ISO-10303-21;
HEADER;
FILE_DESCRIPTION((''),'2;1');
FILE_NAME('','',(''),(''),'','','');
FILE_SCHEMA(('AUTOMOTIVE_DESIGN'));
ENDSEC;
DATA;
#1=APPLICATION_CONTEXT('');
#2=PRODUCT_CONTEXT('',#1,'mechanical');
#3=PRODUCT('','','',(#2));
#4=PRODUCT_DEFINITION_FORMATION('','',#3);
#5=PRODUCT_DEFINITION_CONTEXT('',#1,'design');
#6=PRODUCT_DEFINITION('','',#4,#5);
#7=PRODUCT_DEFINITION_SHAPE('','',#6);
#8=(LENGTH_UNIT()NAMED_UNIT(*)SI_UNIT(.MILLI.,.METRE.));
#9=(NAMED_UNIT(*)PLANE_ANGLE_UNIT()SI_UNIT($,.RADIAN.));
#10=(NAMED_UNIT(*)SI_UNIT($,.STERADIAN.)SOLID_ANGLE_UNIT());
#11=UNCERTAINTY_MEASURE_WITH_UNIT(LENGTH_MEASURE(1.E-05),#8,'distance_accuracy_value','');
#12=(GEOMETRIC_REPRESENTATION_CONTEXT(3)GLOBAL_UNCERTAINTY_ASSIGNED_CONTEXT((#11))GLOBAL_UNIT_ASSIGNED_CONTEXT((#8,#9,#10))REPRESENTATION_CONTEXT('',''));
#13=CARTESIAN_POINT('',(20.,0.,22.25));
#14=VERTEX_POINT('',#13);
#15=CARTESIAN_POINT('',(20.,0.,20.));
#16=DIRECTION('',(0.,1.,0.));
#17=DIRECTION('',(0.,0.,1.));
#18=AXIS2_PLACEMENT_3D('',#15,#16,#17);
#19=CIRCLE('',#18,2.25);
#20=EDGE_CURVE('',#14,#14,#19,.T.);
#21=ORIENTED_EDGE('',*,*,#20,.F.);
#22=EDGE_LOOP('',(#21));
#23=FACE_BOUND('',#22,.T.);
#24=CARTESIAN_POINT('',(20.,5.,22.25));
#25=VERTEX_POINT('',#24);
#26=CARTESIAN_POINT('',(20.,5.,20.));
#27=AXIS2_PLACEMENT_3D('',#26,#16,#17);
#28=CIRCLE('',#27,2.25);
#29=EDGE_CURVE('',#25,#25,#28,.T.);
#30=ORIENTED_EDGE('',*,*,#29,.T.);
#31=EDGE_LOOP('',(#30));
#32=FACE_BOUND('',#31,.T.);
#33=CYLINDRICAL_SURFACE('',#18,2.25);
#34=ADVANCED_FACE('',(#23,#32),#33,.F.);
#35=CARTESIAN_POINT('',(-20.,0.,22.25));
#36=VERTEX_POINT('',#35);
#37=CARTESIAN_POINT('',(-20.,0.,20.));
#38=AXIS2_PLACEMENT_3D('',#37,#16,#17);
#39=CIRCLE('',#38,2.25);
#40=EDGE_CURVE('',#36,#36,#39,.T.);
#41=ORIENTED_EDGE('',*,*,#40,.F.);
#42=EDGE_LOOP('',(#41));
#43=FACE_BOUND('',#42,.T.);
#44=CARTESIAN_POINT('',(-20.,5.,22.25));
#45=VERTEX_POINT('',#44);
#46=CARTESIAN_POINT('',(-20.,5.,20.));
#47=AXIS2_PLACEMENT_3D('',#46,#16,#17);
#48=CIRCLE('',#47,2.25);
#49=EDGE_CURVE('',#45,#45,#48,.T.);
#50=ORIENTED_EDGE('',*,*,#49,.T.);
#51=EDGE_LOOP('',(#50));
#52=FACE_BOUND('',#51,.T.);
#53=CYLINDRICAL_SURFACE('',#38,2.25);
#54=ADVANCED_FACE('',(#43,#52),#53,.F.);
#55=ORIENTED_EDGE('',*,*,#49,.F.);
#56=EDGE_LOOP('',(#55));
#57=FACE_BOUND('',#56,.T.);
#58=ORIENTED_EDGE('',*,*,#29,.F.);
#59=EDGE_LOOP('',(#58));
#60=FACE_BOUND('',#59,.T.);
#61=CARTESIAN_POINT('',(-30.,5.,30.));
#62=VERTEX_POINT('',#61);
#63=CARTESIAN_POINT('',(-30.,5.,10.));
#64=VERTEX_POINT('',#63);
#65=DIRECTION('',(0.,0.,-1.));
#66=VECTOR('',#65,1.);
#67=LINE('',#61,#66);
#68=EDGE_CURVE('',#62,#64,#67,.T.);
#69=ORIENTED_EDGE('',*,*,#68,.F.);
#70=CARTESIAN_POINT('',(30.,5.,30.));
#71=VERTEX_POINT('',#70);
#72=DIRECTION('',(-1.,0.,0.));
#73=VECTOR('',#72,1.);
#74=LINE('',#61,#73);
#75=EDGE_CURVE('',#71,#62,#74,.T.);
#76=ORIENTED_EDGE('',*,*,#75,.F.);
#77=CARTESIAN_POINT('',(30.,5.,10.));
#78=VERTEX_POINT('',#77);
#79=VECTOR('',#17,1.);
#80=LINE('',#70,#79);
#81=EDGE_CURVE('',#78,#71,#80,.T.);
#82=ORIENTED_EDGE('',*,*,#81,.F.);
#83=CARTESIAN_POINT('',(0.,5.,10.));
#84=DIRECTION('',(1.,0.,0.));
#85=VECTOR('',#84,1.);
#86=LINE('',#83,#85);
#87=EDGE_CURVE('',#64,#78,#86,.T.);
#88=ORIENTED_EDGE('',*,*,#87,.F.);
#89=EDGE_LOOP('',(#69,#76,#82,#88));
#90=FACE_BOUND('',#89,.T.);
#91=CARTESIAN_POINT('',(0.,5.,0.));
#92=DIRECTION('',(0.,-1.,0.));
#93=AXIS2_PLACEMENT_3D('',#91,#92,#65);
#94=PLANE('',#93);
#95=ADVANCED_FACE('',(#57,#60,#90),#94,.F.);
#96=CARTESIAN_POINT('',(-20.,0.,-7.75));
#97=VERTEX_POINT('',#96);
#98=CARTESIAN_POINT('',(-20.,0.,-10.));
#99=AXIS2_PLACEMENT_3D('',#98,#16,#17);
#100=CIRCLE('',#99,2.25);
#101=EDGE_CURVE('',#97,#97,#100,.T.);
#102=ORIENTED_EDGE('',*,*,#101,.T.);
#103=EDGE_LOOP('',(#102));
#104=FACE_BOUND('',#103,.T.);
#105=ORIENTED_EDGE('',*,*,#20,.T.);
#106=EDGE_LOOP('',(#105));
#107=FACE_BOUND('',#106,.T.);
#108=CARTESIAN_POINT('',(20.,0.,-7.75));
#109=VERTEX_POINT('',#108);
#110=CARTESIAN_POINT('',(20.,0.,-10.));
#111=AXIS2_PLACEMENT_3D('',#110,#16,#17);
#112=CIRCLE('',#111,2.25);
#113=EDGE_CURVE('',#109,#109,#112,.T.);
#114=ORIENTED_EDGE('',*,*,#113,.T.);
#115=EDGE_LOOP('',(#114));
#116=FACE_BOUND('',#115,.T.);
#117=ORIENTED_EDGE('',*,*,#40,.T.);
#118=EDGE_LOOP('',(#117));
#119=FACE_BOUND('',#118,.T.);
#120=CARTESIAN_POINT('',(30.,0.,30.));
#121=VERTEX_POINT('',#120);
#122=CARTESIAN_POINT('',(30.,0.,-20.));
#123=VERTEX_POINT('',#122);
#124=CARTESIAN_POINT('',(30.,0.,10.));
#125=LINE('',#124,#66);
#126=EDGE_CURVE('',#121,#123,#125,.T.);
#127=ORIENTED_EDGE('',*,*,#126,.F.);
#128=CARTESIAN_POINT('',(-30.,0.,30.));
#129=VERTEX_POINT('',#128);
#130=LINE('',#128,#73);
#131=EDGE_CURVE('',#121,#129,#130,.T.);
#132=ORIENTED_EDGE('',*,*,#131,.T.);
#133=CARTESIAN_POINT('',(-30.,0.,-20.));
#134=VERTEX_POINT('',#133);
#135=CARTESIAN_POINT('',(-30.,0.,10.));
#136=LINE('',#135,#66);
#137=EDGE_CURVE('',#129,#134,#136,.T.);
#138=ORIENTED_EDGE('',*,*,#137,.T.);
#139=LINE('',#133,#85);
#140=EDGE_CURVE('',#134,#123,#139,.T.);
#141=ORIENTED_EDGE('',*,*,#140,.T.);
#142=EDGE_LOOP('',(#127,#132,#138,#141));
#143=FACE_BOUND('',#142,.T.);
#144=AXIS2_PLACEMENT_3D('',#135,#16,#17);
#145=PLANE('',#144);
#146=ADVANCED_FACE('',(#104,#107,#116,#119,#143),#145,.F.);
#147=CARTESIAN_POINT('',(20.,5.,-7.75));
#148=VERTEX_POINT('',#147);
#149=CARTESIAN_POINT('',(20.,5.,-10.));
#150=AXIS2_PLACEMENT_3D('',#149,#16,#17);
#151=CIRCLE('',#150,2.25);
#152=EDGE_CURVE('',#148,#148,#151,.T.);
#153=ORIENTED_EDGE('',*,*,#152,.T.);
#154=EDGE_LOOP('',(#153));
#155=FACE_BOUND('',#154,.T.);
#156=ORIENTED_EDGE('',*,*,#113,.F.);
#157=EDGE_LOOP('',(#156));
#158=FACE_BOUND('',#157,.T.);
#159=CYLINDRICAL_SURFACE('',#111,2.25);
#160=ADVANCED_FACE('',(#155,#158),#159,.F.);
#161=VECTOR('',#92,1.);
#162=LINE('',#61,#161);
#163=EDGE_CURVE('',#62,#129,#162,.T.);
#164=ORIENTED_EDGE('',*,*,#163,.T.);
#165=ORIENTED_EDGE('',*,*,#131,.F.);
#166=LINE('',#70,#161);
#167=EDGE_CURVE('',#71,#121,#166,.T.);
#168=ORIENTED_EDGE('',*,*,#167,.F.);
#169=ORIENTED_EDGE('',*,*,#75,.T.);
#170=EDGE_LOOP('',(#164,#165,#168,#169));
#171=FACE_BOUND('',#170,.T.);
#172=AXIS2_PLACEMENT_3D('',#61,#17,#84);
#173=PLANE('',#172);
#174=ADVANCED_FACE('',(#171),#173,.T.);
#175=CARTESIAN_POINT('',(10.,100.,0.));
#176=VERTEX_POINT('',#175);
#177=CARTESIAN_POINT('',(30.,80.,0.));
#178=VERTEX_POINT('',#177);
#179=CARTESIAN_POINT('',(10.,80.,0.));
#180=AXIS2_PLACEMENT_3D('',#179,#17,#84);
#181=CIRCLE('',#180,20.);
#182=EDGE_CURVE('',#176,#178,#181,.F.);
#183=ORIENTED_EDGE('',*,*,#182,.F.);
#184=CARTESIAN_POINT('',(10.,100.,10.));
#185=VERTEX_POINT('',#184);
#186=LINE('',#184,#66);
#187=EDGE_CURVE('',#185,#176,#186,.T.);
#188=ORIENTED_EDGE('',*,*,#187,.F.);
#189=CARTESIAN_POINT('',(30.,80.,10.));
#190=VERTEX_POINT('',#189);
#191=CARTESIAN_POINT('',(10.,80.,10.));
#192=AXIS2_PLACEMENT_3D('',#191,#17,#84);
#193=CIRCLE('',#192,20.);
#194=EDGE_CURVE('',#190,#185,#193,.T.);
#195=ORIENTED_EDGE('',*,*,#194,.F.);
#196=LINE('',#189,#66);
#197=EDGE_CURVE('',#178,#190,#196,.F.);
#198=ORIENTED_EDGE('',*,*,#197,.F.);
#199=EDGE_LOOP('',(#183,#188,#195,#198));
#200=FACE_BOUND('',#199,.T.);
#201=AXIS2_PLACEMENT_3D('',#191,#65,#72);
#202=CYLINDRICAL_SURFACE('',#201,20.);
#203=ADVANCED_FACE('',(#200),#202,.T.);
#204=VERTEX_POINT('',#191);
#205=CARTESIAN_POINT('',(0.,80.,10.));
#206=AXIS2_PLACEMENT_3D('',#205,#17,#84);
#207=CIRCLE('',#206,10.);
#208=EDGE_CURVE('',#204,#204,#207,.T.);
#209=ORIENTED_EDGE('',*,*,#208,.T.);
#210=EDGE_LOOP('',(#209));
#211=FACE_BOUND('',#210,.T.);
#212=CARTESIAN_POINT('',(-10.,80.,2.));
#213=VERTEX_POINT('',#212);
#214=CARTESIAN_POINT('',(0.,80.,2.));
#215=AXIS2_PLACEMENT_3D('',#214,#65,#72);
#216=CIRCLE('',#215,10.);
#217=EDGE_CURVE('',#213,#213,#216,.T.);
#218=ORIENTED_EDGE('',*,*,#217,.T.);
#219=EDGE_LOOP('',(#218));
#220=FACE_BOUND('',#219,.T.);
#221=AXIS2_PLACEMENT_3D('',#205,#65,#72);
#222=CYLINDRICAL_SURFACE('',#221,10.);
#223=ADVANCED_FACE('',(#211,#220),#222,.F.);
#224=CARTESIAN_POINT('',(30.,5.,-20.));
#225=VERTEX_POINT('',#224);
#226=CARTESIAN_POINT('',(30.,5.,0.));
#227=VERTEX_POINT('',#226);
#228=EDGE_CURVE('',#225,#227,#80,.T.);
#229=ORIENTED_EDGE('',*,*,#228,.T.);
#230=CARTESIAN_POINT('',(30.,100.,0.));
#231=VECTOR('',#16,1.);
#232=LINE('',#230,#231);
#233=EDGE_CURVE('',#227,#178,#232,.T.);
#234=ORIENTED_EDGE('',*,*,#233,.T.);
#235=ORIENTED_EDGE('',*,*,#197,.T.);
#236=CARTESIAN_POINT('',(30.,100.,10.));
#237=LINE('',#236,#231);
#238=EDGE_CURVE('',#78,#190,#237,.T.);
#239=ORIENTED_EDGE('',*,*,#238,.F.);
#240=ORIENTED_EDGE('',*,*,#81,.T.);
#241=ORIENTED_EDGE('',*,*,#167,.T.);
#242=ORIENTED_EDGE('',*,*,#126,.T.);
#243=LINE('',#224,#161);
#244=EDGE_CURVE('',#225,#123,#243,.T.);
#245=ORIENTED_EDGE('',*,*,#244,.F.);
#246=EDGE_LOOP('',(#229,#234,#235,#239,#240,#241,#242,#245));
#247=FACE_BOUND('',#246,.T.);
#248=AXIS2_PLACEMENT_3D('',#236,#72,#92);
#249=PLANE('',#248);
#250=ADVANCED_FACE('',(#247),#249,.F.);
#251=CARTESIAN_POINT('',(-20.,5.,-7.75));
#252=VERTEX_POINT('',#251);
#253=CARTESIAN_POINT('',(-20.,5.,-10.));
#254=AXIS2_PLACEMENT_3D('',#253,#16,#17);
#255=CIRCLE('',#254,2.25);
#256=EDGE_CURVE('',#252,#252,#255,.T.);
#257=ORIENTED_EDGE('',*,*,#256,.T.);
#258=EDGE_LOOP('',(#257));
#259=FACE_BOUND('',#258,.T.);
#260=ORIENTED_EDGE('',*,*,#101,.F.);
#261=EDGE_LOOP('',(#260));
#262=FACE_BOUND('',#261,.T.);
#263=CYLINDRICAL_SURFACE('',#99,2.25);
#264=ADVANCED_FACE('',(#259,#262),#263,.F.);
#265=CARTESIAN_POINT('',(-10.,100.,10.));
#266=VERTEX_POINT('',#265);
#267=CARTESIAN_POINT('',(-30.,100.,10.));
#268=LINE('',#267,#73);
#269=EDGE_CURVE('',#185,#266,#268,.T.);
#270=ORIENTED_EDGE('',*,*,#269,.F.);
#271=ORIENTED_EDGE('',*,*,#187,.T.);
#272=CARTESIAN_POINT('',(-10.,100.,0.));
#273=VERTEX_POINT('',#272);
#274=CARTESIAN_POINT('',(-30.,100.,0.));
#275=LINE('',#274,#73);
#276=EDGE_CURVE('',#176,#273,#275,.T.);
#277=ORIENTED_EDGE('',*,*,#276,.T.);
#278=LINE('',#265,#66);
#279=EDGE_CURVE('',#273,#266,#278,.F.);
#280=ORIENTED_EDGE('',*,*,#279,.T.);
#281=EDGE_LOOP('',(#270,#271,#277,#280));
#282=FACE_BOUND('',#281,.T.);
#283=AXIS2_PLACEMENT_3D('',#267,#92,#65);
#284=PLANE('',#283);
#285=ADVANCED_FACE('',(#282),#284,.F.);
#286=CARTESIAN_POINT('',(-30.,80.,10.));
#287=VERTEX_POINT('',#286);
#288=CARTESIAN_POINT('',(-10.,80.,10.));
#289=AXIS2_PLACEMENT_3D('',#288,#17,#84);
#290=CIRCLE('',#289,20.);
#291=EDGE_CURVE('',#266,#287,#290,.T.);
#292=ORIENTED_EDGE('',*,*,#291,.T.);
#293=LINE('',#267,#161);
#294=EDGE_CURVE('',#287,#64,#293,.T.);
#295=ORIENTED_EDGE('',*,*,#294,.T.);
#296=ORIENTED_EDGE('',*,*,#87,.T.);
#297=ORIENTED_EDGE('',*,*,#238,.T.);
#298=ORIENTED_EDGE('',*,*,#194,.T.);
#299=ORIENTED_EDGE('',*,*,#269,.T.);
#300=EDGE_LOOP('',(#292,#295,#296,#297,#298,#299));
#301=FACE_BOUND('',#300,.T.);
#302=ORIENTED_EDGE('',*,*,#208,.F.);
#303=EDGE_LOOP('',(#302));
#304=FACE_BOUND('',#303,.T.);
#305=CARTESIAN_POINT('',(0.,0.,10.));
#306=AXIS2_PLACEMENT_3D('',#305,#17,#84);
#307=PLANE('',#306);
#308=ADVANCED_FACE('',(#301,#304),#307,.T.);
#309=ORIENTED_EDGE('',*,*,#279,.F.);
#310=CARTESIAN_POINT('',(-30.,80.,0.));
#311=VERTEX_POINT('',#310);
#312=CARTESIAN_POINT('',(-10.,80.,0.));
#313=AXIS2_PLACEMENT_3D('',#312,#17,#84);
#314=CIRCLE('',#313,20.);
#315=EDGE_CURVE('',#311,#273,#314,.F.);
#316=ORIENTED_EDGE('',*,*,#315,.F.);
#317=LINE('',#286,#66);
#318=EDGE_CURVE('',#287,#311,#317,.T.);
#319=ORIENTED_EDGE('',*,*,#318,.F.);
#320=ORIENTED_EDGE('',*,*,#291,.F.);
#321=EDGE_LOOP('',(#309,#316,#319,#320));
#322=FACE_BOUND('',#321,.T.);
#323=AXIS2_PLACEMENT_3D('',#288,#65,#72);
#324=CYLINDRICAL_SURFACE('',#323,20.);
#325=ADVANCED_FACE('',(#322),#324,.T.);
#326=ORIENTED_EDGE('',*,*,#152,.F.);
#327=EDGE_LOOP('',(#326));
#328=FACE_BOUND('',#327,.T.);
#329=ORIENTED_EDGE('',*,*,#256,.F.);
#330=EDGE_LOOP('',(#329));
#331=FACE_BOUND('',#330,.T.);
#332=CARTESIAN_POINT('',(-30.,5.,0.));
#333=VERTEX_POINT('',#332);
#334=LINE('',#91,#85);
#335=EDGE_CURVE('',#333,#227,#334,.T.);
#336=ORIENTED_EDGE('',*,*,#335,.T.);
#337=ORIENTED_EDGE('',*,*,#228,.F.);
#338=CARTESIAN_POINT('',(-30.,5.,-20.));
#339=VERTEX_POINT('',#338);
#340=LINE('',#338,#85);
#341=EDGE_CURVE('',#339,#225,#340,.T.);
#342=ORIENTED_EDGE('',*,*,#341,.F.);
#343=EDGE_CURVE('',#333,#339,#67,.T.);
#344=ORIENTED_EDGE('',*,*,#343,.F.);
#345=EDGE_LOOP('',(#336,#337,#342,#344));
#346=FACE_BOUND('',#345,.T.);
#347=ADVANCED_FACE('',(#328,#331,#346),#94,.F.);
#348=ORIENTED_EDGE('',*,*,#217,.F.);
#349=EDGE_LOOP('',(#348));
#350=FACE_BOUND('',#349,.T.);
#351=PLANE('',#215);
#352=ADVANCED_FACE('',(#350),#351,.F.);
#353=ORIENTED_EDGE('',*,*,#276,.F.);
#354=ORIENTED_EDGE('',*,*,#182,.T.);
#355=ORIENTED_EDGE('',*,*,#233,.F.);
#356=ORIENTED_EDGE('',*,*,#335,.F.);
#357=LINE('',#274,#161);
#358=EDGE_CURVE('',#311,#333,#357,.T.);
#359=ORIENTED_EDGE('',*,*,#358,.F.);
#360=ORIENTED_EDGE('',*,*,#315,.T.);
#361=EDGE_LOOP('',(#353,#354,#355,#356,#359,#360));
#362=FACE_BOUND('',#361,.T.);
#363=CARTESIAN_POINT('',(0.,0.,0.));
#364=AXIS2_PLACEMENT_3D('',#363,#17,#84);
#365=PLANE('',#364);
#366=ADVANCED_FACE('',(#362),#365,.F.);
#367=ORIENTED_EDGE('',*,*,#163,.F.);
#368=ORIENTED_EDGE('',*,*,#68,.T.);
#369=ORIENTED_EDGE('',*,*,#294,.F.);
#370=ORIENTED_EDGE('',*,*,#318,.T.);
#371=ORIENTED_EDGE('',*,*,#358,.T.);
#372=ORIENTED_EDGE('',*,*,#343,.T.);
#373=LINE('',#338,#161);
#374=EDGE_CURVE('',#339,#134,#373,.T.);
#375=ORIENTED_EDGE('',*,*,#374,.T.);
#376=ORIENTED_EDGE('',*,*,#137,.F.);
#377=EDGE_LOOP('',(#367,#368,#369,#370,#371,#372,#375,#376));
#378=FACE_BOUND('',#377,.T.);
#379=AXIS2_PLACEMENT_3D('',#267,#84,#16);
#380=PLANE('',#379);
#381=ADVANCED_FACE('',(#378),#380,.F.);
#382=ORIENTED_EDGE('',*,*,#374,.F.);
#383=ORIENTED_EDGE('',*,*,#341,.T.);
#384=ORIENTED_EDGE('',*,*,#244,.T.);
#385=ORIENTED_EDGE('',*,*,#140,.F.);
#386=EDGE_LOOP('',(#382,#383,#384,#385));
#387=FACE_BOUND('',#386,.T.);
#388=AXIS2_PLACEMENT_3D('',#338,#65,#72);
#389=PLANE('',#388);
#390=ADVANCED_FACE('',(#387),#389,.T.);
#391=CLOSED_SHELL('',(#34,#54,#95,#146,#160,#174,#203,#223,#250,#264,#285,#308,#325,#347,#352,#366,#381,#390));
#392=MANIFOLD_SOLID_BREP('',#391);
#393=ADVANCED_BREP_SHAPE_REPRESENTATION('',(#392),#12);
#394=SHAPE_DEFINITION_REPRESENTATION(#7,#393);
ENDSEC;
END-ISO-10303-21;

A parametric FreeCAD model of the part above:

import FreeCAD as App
import Part
import Sketcher

V = App.Vector


def edges_at(feature, points):
    """Names of the edges that pass closest to the given points."""
    edges = feature.Shape.Edges
    near = lambda p: min(range(len(edges)), key=lambda i: edges[i].distToShape(Part.Vertex(*p))[0])
    return sorted({f"Edge{near(p) + 1}" for p in points})


def add_polygon(sketch, points):
    """Adds a closed chain of lines whose ends are joined by coincident constraints."""
    first, n = sketch.GeometryCount, len(points)
    for a, b in zip(points, points[1:] + points[:1]):
        sketch.addGeometry(Part.LineSegment(App.Vector(*a, 0), App.Vector(*b, 0)), False)
    for i in range(n):
        sketch.addConstraint(Sketcher.Constraint("Coincident", first + i, 2, first + (i + 1) % n, 1))

doc = App.newDocument("Part")
body = doc.addObject("PartDesign::Body", "Body")

sketch1 = doc.addObject("Sketcher::SketchObject", "Sketch")
body.addObject(sketch1)
sketch1.AttachmentSupport = (doc.XY_Plane, [""])
sketch1.MapMode = "FlatFace"
add_polygon(sketch1, [(-30, 100), (-30, 0), (30, 0), (30, 100)])
sketch1.addGeometry(Part.Circle(V(0, 80, 0), V(0, 0, 1), 10), False)
sketch1.addConstraint([
    Sketcher.Constraint("Vertical", 0),
    Sketcher.Constraint("Horizontal", 1),
    Sketcher.Constraint("Vertical", 2),
    Sketcher.Constraint("Horizontal", 3),
    Sketcher.Constraint("Symmetric", 0, 2, 1, 2, -1, 1),
    Sketcher.Constraint("PointOnObject", 4, 3, -2),
    Sketcher.Constraint("Diameter", 4, 20.0),
    Sketcher.Constraint("DistanceX", 1, 1, 1, 2, 60.0),
    Sketcher.Constraint("DistanceY", 0, 2, 0, 1, 100.0),
    Sketcher.Constraint("DistanceY", -1, 1, 4, 3, 80.0),
])
pad1 = doc.addObject("PartDesign::Pad", "Pad")
body.addObject(pad1)
pad1.Profile = sketch1
pad1.Length = 10

sketch2 = doc.addObject("Sketcher::SketchObject", "Sketch001")
body.addObject(sketch2)
sketch2.AttachmentSupport = (doc.XY_Plane, [""])
sketch2.MapMode = "FlatFace"
sketch2.addGeometry(Part.Circle(V(0, 80, 0), V(0, 0, 1), 10), False)
sketch2.addConstraint([
    Sketcher.Constraint("PointOnObject", 0, 3, -2),
    Sketcher.Constraint("Diameter", 0, 20.0),
    Sketcher.Constraint("DistanceY", -1, 1, 0, 3, 80.0),
])
pad2 = doc.addObject("PartDesign::Pad", "Pad001")
body.addObject(pad2)
pad2.Profile = sketch2
pad2.Length = 2
doc.recompute()

fillet = doc.addObject("PartDesign::Fillet", "Fillet")
body.addObject(fillet)
fillet.Base = (pad2, edges_at(pad2, [(-30, 100, 5), (30, 100, 5)]))
fillet.Radius = 20

sketch3 = doc.addObject("Sketcher::SketchObject", "Sketch002")
body.addObject(sketch3)
sketch3.AttachmentSupport = (doc.XZ_Plane, [""])
sketch3.MapMode = "FlatFace"
add_polygon(sketch3, [(-30, 30), (-30, -20), (30, -20), (30, 30)])
sketch3.addConstraint([
    Sketcher.Constraint("Vertical", 0),
    Sketcher.Constraint("Horizontal", 1),
    Sketcher.Constraint("Vertical", 2),
    Sketcher.Constraint("Horizontal", 3),
    Sketcher.Constraint("DistanceX", 1, 1, 1, 2, 60.0),
    Sketcher.Constraint("DistanceY", 0, 2, 0, 1, 50.0),
    Sketcher.Constraint("DistanceX", 0, 2, -1, 1, 30.0),
    Sketcher.Constraint("DistanceY", 0, 2, -1, 1, 20.0),
])
pad3 = doc.addObject("PartDesign::Pad", "Pad002")
body.addObject(pad3)
pad3.Profile = sketch3
pad3.Length = 5
pad3.Reversed = True

sketch4 = doc.addObject("Sketcher::SketchObject", "Sketch003")
body.addObject(sketch4)
sketch4.AttachmentSupport = (doc.XZ_Plane, [""])
sketch4.MapMode = "FlatFace"
sketch4.AttachmentOffset = App.Placement(V(0, 0, -5), App.Rotation())
sketch4.addGeometry([
    Part.Circle(V(-20, -10, 0), V(0, 0, 1), 2.2),
    Part.Circle(V(20, -10, 0), V(0, 0, 1), 2.2),
    Part.Circle(V(-20, 20, 0), V(0, 0, 1), 2.2),
    Part.Circle(V(20, 20, 0), V(0, 0, 1), 2.2),
], False)
sketch4.addConstraint([
    Sketcher.Constraint("Equal", 0, 1),
    Sketcher.Constraint("Equal", 1, 2),
    Sketcher.Constraint("Equal", 2, 3),
    Sketcher.Constraint("Symmetric", 0, 3, 1, 3, -2),
    Sketcher.Constraint("Symmetric", 2, 3, 3, 3, -2),
    Sketcher.Constraint("Vertical", 0, 3, 2, 3),
    Sketcher.Constraint("Diameter", 0, 4.5),
    Sketcher.Constraint("DistanceX", 0, 3, -1, 1, 20.0),
    Sketcher.Constraint("DistanceY", 0, 3, -1, 1, 10.0),
    Sketcher.Constraint("DistanceY", -1, 1, 2, 3, 20.0),
])
pocket1 = doc.addObject("PartDesign::Pocket", "Pocket")
body.addObject(pocket1)
pocket1.Profile = sketch4
pocket1.Type = "ThroughAll"
pocket1.Reversed = True

doc.recompute()
